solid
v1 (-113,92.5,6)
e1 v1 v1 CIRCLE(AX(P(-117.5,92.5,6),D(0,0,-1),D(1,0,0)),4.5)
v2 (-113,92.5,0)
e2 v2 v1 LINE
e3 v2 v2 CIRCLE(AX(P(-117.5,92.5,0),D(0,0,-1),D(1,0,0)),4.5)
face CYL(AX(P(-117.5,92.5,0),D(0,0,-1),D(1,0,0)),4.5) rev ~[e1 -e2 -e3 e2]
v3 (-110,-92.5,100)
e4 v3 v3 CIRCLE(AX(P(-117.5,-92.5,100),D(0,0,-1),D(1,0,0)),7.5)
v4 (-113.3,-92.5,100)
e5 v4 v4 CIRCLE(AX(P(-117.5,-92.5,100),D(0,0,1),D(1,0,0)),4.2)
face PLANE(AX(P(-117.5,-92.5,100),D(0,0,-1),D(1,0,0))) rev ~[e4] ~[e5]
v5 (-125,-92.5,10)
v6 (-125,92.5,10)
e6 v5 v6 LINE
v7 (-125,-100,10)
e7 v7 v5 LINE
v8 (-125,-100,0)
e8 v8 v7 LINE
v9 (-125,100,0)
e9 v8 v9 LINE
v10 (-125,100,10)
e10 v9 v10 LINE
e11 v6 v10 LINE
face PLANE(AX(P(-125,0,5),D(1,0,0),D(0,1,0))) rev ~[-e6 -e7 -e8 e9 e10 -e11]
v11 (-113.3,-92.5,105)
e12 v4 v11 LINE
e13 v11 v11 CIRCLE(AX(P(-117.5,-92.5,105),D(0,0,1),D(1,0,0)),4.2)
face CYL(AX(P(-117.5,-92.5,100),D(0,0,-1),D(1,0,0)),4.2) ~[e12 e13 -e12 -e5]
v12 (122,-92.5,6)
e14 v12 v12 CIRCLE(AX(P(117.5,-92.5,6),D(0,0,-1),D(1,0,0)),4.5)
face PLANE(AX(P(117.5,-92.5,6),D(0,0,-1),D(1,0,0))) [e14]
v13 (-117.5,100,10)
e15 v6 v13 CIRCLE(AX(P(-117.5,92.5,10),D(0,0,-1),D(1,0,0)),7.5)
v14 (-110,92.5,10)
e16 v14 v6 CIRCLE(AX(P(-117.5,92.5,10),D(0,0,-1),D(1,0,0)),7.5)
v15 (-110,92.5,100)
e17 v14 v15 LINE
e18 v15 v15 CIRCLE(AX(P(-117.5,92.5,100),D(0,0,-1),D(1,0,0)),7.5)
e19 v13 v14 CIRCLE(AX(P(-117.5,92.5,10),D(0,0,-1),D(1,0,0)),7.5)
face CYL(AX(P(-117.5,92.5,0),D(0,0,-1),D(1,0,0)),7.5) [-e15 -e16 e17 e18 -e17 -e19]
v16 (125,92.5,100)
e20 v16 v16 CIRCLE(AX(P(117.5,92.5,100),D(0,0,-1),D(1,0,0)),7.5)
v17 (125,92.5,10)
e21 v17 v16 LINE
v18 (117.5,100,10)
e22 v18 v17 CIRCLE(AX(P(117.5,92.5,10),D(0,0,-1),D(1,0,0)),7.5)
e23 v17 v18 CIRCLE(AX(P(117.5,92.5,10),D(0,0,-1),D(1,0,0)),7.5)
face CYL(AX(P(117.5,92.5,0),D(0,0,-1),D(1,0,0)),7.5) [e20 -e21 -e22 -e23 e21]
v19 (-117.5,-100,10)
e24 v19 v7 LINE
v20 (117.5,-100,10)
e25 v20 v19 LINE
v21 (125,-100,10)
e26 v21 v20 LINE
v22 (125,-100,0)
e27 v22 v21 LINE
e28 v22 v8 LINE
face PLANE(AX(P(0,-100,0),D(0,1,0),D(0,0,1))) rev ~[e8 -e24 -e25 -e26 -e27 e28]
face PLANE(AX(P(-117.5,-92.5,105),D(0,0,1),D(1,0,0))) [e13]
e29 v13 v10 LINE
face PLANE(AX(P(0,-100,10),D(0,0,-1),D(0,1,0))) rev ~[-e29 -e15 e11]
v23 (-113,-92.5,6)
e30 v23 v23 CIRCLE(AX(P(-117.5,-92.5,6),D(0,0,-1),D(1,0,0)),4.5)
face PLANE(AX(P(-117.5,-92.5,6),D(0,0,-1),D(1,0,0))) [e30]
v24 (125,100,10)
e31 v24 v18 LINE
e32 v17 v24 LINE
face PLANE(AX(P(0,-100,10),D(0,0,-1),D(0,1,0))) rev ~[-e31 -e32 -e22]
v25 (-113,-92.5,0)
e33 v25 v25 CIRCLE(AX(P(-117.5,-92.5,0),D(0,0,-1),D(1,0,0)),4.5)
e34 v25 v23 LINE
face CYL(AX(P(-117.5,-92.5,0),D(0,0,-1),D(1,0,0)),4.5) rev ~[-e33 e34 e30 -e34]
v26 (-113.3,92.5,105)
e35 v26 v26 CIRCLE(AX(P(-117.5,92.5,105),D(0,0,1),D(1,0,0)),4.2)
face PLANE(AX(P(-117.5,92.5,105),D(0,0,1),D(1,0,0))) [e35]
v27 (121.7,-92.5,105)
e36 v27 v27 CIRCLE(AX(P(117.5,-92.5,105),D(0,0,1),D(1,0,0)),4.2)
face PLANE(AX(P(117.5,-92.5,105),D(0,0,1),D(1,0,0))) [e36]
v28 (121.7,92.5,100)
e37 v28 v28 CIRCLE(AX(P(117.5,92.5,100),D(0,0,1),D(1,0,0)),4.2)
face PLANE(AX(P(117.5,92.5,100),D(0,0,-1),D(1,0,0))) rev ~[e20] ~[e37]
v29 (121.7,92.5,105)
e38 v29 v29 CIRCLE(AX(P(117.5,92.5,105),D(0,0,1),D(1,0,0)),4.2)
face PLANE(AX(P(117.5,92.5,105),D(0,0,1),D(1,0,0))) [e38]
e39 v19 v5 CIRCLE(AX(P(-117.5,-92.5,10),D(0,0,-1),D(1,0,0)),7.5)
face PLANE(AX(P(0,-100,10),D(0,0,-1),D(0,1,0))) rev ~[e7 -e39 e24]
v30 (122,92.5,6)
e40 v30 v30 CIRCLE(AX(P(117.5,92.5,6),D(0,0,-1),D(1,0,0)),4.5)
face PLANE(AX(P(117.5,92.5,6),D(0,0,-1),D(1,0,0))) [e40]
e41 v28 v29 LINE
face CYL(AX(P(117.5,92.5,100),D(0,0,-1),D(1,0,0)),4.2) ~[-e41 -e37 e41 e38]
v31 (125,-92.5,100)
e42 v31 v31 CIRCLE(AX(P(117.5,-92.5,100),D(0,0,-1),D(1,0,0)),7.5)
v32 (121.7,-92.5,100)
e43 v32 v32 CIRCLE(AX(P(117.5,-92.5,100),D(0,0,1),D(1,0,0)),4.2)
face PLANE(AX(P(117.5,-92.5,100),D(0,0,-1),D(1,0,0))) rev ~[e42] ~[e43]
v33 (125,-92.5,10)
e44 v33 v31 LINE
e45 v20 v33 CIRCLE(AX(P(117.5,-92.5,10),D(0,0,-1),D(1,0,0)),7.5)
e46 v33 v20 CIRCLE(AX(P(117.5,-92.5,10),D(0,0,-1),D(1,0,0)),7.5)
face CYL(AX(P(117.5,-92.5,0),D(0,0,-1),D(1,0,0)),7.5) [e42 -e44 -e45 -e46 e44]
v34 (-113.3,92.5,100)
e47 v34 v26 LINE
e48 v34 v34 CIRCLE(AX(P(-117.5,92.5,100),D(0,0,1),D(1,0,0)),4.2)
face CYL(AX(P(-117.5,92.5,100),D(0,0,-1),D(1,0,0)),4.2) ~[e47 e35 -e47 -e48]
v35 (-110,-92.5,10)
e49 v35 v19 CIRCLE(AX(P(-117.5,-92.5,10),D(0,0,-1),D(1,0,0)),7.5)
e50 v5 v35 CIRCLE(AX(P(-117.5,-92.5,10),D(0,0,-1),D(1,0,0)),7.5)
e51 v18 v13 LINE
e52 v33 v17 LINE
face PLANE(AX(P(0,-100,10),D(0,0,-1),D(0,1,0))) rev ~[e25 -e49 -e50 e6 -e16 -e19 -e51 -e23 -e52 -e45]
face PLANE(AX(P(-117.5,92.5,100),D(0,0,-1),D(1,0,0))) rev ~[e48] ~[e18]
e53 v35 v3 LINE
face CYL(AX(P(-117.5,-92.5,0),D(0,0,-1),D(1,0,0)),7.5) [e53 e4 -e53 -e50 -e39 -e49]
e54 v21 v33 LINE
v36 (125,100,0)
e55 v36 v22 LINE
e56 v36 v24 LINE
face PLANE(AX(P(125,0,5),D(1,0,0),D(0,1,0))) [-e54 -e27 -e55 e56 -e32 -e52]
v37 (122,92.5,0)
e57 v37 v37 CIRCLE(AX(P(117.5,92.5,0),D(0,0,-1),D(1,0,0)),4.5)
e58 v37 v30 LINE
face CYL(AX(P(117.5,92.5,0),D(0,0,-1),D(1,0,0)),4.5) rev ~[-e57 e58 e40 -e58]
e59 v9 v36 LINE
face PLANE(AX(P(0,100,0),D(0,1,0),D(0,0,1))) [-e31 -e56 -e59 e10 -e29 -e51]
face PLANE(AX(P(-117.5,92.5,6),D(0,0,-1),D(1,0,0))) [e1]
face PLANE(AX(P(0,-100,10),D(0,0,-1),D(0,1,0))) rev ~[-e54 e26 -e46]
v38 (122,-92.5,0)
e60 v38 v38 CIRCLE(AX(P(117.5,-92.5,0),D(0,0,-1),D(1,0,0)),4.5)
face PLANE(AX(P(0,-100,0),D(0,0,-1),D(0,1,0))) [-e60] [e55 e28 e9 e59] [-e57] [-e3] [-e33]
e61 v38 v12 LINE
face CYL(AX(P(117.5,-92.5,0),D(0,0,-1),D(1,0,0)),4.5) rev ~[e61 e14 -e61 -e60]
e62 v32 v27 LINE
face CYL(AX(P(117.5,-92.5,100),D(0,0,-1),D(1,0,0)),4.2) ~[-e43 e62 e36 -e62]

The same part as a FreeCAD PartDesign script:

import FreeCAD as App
import Part
import Sketcher
Q = App.Units.Quantity


def add_polygon(sketch, points):
    """Adds a closed chain of lines whose ends are joined by coincident constraints."""
    first, n = sketch.GeometryCount, len(points)
    for a, b in zip(points, points[1:] + points[:1]):
        sketch.addGeometry(Part.LineSegment(App.Vector(*a, 0), App.Vector(*b, 0)), False)
    for i in range(n):
        sketch.addConstraint(Sketcher.Constraint("Coincident", first + i, 2, first + (i + 1) % n, 1))

doc = App.newDocument("Part")
body = doc.addObject("PartDesign::Body", "Body")

sketch1 = doc.addObject("Sketcher::SketchObject", "Sketch")
body.addObject(sketch1)
sketch1.AttachmentSupport = (doc.YZ_Plane, [""])
sketch1.MapMode = "FlatFace"
add_polygon(sketch1, [(-100, 10), (-100, 0), (100, 0), (100, 10)])
sketch1.addConstraint(Sketcher.Constraint("Vertical", 0))
sketch1.addConstraint(Sketcher.Constraint("Horizontal", 1))
sketch1.addConstraint(Sketcher.Constraint("Vertical", 2))
sketch1.addConstraint(Sketcher.Constraint("Horizontal", 3))
sketch1.addConstraint(Sketcher.Constraint("Symmetric", 0, 2, 1, 2, -1, 1))
sketch1.addConstraint(Sketcher.Constraint("DistanceX", 1, 1, 1, 2, Q("200 mm")))
sketch1.addConstraint(Sketcher.Constraint("DistanceY", 0, 2, 0, 1, Q("10 mm")))
pad1 = doc.addObject("PartDesign::Pad", "Pad")
body.addObject(pad1)
pad1.Profile = sketch1
pad1.Length = 250
pad1.Midplane = True

sketch2 = doc.addObject("Sketcher::SketchObject", "Sketch001")
body.addObject(sketch2)
sketch2.AttachmentSupport = (doc.XY_Plane, [""])
sketch2.MapMode = "FlatFace"
sketch2.addGeometry(Part.Circle(App.Vector(-118, 92, 0), App.Vector(0, 0, 1), 8), False)
sketch2.addGeometry(Part.Circle(App.Vector(118, 92, 0), App.Vector(0, 0, 1), 8), False)
sketch2.addGeometry(Part.Circle(App.Vector(118, -92, 0), App.Vector(0, 0, 1), 8), False)
sketch2.addGeometry(Part.Circle(App.Vector(-118, -92, 0), App.Vector(0, 0, 1), 8), False)
sketch2.addConstraint(Sketcher.Constraint("Equal", 0, 1))
sketch2.addConstraint(Sketcher.Constraint("Equal", 1, 2))
sketch2.addConstraint(Sketcher.Constraint("Equal", 2, 3))
sketch2.addConstraint(Sketcher.Constraint("Symmetric", 0, 3, 2, 3, -1, 1))
sketch2.addConstraint(Sketcher.Constraint("Symmetric", 1, 3, 3, 3, -1, 1))
sketch2.addConstraint(Sketcher.Constraint("Symmetric", 0, 3, 1, 3, -2))
sketch2.addConstraint(Sketcher.Constraint("Diameter", 0, Q("15 mm")))
sketch2.addConstraint(Sketcher.Constraint("DistanceX", 0, 3, 1, 3, Q("235 mm")))
sketch2.addConstraint(Sketcher.Constraint("DistanceY", 2, 3, 1, 3, Q("185 mm")))
pad2 = doc.addObject("PartDesign::Pad", "Pad001")
body.addObject(pad2)
pad2.Profile = sketch2
pad2.Length = 100

sketch3 = doc.addObject("Sketcher::SketchObject", "Sketch002")
body.addObject(sketch3)
sketch3.AttachmentSupport = (doc.XY_Plane, [""])
sketch3.MapMode = "FlatFace"
sketch3.addGeometry(Part.Circle(App.Vector(-117.5, -92.5, 0), App.Vector(0, 0, 1), 4.5), False)
sketch3.addGeometry(Part.Circle(App.Vector(-117.5, 92.5, 0), App.Vector(0, 0, 1), 4.5), False)
sketch3.addGeometry(Part.Circle(App.Vector(117.5, -92.5, 0), App.Vector(0, 0, 1), 4.5), False)
sketch3.addGeometry(Part.Circle(App.Vector(117.5, 92.5, 0), App.Vector(0, 0, 1), 4.5), False)
sketch3.addConstraint(Sketcher.Constraint("Equal", 0, 1))
sketch3.addConstraint(Sketcher.Constraint("Equal", 1, 2))
sketch3.addConstraint(Sketcher.Constraint("Equal", 2, 3))
sketch3.addConstraint(Sketcher.Constraint("Symmetric", 1, 3, 2, 3, -1, 1))
sketch3.addConstraint(Sketcher.Constraint("Symmetric", 0, 3, 3, 3, -1, 1))
sketch3.addConstraint(Sketcher.Constraint("Symmetric", 0, 3, 2, 3, -2))
sketch3.addConstraint(Sketcher.Constraint("Diameter", 0, Q("9 mm")))
sketch3.addConstraint(Sketcher.Constraint("DistanceY", 0, 3, 1, 3, Q("185 mm")))
sketch3.addConstraint(Sketcher.Constraint("DistanceX", 0, 3, 2, 3, Q("235 mm")))
pocket1 = doc.addObject("PartDesign::Pocket", "Pocket")
body.addObject(pocket1)
pocket1.Profile = sketch3
pocket1.Length = 6
pocket1.Reversed = True

sketch4 = doc.addObject("Sketcher::SketchObject", "Sketch003")
body.addObject(sketch4)
sketch4.AttachmentSupport = (doc.XY_Plane, [""])
sketch4.MapMode = "FlatFace"
sketch4.AttachmentOffset = App.Placement(App.Vector(0, 0, 100), App.Rotation())
sketch4.addGeometry(Part.Circle(App.Vector(-117.5, 92.5, 0), App.Vector(0, 0, 1), 4.2), False)
sketch4.addGeometry(Part.Circle(App.Vector(117.5, 92.5, 0), App.Vector(0, 0, 1), 4.2), False)
sketch4.addGeometry(Part.Circle(App.Vector(117.5, -92.5, 0), App.Vector(0, 0, 1), 4.2), False)
sketch4.addGeometry(Part.Circle(App.Vector(-117.5, -92.5, 0), App.Vector(0, 0, 1), 4.2), False)
sketch4.addConstraint(Sketcher.Constraint("Equal", 0, 1))
sketch4.addConstraint(Sketcher.Constraint("Equal", 1, 2))
sketch4.addConstraint(Sketcher.Constraint("Equal", 2, 3))
sketch4.addConstraint(Sketcher.Constraint("Symmetric", 0, 3, 2, 3, -1, 1))
sketch4.addConstraint(Sketcher.Constraint("Symmetric", 1, 3, 3, 3, -1, 1))
sketch4.addConstraint(Sketcher.Constraint("Symmetric", 0, 3, 1, 3, -2))
sketch4.addConstraint(Sketcher.Constraint("Diameter", 0, Q("8.4 mm")))
sketch4.addConstraint(Sketcher.Constraint("DistanceX", 0, 3, 1, 3, Q("235 mm")))
sketch4.addConstraint(Sketcher.Constraint("DistanceY", 2, 3, 1, 3, Q("185 mm")))
pad3 = doc.addObject("PartDesign::Pad", "Pad002")
body.addObject(pad3)
pad3.Profile = sketch4
pad3.Length = 5

doc.recompute()
